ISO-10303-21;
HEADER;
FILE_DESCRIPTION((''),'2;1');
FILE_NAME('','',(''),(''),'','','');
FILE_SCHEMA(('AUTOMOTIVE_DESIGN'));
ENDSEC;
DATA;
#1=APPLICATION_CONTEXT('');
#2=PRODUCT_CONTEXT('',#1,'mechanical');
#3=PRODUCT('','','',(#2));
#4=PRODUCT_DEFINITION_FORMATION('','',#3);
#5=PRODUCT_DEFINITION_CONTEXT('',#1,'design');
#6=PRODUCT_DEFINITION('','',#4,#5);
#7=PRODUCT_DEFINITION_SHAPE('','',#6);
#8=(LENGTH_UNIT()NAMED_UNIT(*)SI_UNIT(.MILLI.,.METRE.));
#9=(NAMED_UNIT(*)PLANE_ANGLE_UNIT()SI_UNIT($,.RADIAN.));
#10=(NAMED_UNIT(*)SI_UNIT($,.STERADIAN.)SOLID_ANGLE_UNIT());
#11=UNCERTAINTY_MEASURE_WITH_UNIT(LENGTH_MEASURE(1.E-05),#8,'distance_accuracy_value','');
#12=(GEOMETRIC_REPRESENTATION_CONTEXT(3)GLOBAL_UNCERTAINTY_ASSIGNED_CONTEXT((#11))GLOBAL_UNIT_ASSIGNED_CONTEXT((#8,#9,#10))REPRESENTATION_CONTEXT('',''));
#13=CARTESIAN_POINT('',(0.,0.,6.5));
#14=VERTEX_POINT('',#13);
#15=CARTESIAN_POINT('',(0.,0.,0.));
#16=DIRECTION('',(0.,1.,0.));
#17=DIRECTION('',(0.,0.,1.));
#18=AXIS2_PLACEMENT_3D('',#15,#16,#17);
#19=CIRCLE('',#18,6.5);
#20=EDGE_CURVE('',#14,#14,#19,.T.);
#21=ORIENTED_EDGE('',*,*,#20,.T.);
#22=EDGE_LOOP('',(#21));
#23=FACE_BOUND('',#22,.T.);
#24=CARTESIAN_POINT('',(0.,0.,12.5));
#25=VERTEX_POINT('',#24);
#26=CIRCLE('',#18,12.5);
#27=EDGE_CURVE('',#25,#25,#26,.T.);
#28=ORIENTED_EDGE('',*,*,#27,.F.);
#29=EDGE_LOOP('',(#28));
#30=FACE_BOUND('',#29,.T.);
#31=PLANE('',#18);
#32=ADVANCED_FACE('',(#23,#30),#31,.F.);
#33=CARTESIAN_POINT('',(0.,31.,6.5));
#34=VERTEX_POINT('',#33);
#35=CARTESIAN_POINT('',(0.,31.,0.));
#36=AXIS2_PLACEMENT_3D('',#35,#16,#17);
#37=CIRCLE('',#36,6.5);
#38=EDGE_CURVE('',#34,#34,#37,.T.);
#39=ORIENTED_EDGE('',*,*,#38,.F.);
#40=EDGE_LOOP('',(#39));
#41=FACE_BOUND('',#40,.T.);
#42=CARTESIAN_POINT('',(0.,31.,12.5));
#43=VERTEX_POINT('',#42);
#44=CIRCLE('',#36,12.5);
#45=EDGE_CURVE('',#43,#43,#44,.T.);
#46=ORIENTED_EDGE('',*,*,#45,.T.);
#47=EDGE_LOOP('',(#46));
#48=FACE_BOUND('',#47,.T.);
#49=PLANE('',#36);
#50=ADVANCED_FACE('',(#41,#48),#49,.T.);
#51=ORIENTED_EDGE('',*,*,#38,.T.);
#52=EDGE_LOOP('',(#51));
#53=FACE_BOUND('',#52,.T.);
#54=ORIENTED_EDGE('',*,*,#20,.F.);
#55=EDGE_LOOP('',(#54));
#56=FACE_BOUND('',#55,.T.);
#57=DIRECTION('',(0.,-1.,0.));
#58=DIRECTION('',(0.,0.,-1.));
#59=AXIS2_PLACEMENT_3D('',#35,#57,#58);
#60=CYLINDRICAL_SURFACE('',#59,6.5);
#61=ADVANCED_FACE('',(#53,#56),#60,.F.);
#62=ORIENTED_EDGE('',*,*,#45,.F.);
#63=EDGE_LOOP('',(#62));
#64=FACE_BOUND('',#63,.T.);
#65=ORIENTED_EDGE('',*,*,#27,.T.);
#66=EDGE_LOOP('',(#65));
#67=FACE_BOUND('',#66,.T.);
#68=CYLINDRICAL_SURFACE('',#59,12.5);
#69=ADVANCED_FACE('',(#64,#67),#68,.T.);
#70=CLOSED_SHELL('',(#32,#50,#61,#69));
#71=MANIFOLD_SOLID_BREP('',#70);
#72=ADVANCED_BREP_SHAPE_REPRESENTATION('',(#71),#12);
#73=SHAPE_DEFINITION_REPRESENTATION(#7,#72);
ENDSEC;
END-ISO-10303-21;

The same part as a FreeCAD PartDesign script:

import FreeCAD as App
import Part
import Sketcher

doc = App.newDocument("Part")
body = doc.addObject("PartDesign::Body", "Body")

# Sketch on XZ plane
sketch1 = doc.addObject("Sketcher::SketchObject", "Sketch")
body.addObject(sketch1)
sketch1.AttachmentSupport = (doc.XZ_Plane, [""])
sketch1.MapMode = "FlatFace"
sketch1.addGeometry([
    Part.Circle(App.Vector(0, 0, 0), App.Vector(0, 0, 1), 12),
    Part.Circle(App.Vector(0, 0, 0), App.Vector(0, 0, 1), 6),
], False)
sketch1.addConstraint([
    Sketcher.Constraint("Coincident", 0, 3, -1, 1),
    Sketcher.Constraint("Coincident", 1, 3, -1, 1),
    Sketcher.Constraint("Diameter", 0, 25.0),
    Sketcher.Constraint("Diameter", 1, 13.0),
])
pad1 = doc.addObject("PartDesign::Pad", "Pad")
body.addObject(pad1)
pad1.Profile = sketch1
pad1.Length = 31
pad1.Reversed = True

doc.recompute()
